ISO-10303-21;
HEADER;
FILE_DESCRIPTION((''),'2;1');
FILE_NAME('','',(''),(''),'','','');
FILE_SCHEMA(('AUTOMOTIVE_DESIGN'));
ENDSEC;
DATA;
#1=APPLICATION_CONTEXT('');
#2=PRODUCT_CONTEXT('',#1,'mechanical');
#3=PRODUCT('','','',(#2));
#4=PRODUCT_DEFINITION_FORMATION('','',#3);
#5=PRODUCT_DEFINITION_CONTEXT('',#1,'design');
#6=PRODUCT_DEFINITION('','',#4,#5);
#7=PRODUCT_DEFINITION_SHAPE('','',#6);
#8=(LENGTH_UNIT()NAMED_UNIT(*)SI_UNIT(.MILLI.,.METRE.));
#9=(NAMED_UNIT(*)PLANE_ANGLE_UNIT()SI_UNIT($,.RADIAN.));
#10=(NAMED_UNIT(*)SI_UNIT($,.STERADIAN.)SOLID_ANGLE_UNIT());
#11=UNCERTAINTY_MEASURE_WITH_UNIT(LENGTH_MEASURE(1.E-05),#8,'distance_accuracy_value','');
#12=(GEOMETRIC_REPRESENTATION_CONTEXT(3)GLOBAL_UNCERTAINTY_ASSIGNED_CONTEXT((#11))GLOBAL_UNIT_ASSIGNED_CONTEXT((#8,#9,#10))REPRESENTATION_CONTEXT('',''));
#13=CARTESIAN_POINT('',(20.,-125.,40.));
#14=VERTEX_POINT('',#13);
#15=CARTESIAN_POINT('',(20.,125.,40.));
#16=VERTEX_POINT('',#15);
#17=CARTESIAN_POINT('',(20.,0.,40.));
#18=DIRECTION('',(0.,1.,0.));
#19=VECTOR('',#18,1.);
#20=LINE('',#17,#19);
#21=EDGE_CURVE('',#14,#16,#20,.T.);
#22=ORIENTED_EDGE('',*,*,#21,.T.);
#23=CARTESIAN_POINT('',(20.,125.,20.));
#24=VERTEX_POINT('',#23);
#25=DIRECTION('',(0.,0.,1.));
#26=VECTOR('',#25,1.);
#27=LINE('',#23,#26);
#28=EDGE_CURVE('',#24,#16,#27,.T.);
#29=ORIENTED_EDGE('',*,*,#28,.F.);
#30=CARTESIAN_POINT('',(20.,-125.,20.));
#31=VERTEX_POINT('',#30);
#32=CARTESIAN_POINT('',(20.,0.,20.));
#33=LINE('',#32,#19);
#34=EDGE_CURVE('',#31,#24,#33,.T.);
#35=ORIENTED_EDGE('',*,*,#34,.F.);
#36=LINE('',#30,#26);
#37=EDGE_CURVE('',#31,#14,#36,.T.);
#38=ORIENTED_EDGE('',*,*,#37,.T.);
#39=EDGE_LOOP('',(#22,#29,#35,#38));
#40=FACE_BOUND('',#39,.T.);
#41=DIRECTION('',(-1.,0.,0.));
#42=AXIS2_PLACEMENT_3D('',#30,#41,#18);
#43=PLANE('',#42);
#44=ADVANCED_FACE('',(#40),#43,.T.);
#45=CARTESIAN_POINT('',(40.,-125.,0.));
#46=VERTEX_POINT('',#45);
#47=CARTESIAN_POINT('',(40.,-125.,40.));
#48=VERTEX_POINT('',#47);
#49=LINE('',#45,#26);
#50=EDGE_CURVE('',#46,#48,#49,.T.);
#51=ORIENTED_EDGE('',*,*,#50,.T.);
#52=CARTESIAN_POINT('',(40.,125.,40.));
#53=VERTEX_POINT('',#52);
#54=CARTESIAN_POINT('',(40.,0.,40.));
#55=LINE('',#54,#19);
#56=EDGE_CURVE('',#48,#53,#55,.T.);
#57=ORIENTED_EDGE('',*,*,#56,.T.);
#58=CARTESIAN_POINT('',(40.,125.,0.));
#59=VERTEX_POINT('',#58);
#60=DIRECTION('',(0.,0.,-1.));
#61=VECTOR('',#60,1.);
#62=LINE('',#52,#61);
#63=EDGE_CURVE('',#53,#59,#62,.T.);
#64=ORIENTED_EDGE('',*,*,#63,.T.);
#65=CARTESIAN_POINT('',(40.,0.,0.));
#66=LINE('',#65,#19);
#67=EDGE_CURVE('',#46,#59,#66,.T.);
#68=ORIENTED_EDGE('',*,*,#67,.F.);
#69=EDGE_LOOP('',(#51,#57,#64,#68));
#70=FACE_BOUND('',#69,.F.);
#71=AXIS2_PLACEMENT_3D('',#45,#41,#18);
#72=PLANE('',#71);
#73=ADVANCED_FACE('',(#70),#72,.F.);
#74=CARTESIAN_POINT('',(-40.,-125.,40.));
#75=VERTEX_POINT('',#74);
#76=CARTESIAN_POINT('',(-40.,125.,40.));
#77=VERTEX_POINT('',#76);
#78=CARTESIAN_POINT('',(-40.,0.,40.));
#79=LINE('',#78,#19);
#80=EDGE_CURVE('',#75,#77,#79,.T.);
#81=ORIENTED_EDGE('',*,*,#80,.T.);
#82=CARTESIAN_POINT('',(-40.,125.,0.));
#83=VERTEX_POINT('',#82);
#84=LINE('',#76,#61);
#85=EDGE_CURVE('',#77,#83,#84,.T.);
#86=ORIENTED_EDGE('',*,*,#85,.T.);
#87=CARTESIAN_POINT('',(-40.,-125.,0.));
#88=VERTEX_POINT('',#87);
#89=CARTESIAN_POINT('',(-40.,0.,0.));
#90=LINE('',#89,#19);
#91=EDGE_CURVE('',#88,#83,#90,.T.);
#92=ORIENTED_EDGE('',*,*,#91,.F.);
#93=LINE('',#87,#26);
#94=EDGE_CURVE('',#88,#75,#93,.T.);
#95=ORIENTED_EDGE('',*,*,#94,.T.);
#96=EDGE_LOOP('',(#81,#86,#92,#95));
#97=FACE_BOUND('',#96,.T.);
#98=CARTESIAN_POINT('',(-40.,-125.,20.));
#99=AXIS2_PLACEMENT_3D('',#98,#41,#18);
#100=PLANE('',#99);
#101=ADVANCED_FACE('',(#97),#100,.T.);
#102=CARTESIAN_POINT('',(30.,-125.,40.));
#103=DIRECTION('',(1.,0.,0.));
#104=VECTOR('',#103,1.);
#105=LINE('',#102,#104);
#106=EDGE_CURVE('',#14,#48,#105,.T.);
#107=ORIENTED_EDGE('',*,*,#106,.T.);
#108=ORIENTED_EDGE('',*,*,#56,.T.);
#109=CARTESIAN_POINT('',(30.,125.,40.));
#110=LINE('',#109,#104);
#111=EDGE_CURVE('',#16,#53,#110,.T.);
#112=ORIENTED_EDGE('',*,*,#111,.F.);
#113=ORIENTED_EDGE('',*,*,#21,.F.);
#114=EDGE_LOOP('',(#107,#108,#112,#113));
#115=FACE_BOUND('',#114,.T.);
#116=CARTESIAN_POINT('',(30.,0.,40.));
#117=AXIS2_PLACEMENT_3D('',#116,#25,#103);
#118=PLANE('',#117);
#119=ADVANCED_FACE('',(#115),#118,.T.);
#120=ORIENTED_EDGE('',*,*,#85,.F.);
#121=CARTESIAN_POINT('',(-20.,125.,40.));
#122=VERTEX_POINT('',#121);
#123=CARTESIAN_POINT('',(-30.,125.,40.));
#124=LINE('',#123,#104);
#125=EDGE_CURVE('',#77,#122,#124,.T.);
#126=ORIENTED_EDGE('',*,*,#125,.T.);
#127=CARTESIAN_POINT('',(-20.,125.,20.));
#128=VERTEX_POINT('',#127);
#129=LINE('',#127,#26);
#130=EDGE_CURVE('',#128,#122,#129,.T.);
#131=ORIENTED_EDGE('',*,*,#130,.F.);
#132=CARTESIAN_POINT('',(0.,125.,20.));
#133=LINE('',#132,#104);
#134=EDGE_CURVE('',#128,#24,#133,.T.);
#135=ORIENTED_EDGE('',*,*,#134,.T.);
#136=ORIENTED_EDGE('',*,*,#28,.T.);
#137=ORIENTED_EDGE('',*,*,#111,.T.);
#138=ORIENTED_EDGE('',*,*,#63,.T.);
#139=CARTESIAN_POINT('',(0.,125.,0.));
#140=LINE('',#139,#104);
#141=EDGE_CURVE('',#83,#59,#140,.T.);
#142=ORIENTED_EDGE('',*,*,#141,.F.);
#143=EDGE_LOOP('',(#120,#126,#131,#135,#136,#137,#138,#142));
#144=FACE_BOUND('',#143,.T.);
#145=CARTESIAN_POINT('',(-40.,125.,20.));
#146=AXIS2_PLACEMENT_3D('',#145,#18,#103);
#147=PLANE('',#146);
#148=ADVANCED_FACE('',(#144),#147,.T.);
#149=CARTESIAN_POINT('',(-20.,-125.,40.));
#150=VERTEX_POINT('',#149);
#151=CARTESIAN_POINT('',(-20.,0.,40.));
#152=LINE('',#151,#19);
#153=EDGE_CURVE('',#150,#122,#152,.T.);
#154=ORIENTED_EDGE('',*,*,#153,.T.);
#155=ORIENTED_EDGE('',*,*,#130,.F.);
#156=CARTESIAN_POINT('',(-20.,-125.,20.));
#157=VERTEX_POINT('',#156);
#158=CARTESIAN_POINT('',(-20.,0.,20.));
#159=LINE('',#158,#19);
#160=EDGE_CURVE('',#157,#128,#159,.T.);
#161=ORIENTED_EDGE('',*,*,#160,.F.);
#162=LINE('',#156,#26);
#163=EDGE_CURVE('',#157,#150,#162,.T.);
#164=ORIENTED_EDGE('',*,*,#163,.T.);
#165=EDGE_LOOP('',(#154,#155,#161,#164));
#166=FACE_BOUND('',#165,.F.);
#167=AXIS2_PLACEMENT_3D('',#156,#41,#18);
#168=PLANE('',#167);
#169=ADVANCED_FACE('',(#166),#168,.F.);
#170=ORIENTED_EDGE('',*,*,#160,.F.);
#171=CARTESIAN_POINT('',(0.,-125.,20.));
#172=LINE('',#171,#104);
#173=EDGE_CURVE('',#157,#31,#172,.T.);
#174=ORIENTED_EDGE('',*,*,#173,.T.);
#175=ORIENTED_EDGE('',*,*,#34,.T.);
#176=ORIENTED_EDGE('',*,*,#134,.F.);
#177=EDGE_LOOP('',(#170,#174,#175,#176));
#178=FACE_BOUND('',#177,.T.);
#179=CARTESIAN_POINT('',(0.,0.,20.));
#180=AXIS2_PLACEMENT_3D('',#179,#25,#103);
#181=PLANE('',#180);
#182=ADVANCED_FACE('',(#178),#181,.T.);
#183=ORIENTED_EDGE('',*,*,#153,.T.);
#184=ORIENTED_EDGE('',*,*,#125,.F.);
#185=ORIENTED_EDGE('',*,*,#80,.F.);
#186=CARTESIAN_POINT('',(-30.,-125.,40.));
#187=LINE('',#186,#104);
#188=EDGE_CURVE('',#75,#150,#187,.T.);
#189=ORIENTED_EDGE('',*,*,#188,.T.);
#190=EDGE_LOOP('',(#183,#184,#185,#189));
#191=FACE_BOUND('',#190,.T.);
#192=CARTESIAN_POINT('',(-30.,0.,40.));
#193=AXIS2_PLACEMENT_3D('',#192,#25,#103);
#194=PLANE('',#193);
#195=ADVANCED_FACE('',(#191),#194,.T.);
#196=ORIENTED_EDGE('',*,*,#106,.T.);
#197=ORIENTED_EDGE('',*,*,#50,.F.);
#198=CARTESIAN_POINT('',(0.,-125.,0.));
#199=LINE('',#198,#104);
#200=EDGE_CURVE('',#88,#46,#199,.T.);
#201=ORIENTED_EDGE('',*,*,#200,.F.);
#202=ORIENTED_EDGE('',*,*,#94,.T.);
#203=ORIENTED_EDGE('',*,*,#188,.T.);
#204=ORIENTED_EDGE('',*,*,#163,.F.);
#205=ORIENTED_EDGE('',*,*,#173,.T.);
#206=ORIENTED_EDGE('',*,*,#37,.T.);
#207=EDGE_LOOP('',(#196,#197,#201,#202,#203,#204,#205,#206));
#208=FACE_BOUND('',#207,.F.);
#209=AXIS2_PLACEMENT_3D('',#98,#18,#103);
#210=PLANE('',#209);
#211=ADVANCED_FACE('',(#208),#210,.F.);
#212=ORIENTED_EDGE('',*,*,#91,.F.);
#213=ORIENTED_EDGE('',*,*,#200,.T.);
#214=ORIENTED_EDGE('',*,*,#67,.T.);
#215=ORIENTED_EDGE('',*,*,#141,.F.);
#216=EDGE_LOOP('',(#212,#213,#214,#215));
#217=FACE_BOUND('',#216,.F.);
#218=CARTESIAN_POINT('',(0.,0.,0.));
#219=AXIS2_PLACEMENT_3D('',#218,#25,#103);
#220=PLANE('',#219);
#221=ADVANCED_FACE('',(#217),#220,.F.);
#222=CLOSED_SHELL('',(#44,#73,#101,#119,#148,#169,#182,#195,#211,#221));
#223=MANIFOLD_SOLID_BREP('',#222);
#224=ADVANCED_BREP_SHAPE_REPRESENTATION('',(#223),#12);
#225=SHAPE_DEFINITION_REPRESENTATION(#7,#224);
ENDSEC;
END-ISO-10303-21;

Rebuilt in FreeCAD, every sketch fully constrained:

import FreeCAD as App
import Part
import Sketcher

V = App.Vector

doc = App.newDocument("Part")
params = doc.addObject("Spreadsheet::Sheet", "Params")
for row, (alias, value) in enumerate([
    ("sketch1_width", "80 mm"),
    ("sketch1_height", "250 mm"),
    ("pad1_length", "20 mm"),
    ("sketch2_width", "20 mm"),
    ("sketch2_height", "250 mm"),
    ("pad2_length", "20 mm"),
], start=1):
    params.set(f"A{row}", alias)
    params.set(f"B{row}", "=" + value)
    params.setAlias(f"B{row}", alias)

body = doc.addObject("PartDesign::Body", "Body")

# Sketch on XY plane
sketch1 = doc.addObject("Sketcher::SketchObject", "Sketch")
body.addObject(sketch1)
sketch1.AttachmentSupport = (doc.XY_Plane, [""])
sketch1.MapMode = "FlatFace"
sketch1.addGeometry([
    Part.LineSegment(V(-40, 125, 0), V(-40, -125, 0)),
    Part.LineSegment(V(-40, -125, 0), V(40, -125, 0)),
    Part.LineSegment(V(40, -125, 0), V(40, 125, 0)),
    Part.LineSegment(V(40, 125, 0), V(-40, 125, 0)),
], False)
sketch1.addConstraint([
    Sketcher.Constraint("Coincident", 0, 2, 1, 1),
    Sketcher.Constraint("Coincident", 1, 2, 2, 1),
    Sketcher.Constraint("Coincident", 2, 2, 3, 1),
    Sketcher.Constraint("Coincident", 3, 2, 0, 1),
    Sketcher.Constraint("Vertical", 0),
    Sketcher.Constraint("Horizontal", 1),
    Sketcher.Constraint("Vertical", 2),
    Sketcher.Constraint("Horizontal", 3),
    Sketcher.Constraint("Symmetric", 0, 2, 2, 2, -1, 1),
    Sketcher.Constraint("DistanceX", 1, 1, 1, 2, 80.0),
    Sketcher.Constraint("DistanceY", 0, 2, 0, 1, 250.0),
])
sketch1.setExpression("Constraints[9]", "Params.sketch1_width")
sketch1.setExpression("Constraints[10]", "Params.sketch1_height")
pad1 = doc.addObject("PartDesign::Pad", "Pad")
body.addObject(pad1)
pad1.Profile = sketch1
pad1.setExpression("Length", "Params.pad1_length")

# Sketch on XY plane
sketch2 = doc.addObject("Sketcher::SketchObject", "Sketch001")
body.addObject(sketch2)
sketch2.AttachmentSupport = (doc.XY_Plane, [""])
sketch2.MapMode = "FlatFace"
sketch2.AttachmentOffset = App.Placement(V(0, 0, 20), App.Rotation())
sketch2.addGeometry([
    Part.LineSegment(V(-40, 125, 0), V(-40, -125, 0)),  # 0
    Part.LineSegment(V(-40, -125, 0), V(-20, -125, 0)),  # 1
    Part.LineSegment(V(-20, -125, 0), V(-20, 125, 0)),  # 2
    Part.LineSegment(V(-20, 125, 0), V(-40, 125, 0)),  # 3
    Part.LineSegment(V(20, 125, 0), V(20, -125, 0)),  # 4
    Part.LineSegment(V(20, -125, 0), V(40, -125, 0)),  # 5
    Part.LineSegment(V(40, -125, 0), V(40, 125, 0)),  # 6
    Part.LineSegment(V(40, 125, 0), V(20, 125, 0)),  # 7
], False)
sketch2.addConstraint([
    Sketcher.Constraint("Coincident", 0, 2, 1, 1),
    Sketcher.Constraint("Coincident", 1, 2, 2, 1),
    Sketcher.Constraint("Coincident", 2, 2, 3, 1),
    Sketcher.Constraint("Coincident", 3, 2, 0, 1),
    Sketcher.Constraint("Coincident", 4, 2, 5, 1),
    Sketcher.Constraint("Coincident", 5, 2, 6, 1),
    Sketcher.Constraint("Coincident", 6, 2, 7, 1),
    Sketcher.Constraint("Coincident", 7, 2, 4, 1),
    Sketcher.Constraint("Vertical", 0),
    Sketcher.Constraint("Horizontal", 1),
    Sketcher.Constraint("Vertical", 2),
    Sketcher.Constraint("Horizontal", 3),
    Sketcher.Constraint("Vertical", 4),
    Sketcher.Constraint("Horizontal", 5),
    Sketcher.Constraint("Vertical", 6),
    Sketcher.Constraint("Horizontal", 7),
    Sketcher.Constraint("Symmetric", 2, 2, 4, 2, -1, 1),
    Sketcher.Constraint("Symmetric", 0, 2, 6, 2, -1, 1),
    Sketcher.Constraint("Horizontal", 1, 2, 4, 2),
    Sketcher.Constraint("DistanceX", 1, 1, 1, 2, 20.0),
    Sketcher.Constraint("DistanceY", 0, 2, 0, 1, 250.0),
    Sketcher.Constraint("DistanceX", 0, 2, -1, 1, 40.0),
])
sketch2.setExpression("Constraints[19]", "Params.sketch2_width")
sketch2.setExpression("Constraints[20]", "Params.sketch2_height")
pad2 = doc.addObject("PartDesign::Pad", "Pad001")
body.addObject(pad2)
pad2.Profile = sketch2
pad2.setExpression("Length", "Params.pad2_length")

doc.recompute()
